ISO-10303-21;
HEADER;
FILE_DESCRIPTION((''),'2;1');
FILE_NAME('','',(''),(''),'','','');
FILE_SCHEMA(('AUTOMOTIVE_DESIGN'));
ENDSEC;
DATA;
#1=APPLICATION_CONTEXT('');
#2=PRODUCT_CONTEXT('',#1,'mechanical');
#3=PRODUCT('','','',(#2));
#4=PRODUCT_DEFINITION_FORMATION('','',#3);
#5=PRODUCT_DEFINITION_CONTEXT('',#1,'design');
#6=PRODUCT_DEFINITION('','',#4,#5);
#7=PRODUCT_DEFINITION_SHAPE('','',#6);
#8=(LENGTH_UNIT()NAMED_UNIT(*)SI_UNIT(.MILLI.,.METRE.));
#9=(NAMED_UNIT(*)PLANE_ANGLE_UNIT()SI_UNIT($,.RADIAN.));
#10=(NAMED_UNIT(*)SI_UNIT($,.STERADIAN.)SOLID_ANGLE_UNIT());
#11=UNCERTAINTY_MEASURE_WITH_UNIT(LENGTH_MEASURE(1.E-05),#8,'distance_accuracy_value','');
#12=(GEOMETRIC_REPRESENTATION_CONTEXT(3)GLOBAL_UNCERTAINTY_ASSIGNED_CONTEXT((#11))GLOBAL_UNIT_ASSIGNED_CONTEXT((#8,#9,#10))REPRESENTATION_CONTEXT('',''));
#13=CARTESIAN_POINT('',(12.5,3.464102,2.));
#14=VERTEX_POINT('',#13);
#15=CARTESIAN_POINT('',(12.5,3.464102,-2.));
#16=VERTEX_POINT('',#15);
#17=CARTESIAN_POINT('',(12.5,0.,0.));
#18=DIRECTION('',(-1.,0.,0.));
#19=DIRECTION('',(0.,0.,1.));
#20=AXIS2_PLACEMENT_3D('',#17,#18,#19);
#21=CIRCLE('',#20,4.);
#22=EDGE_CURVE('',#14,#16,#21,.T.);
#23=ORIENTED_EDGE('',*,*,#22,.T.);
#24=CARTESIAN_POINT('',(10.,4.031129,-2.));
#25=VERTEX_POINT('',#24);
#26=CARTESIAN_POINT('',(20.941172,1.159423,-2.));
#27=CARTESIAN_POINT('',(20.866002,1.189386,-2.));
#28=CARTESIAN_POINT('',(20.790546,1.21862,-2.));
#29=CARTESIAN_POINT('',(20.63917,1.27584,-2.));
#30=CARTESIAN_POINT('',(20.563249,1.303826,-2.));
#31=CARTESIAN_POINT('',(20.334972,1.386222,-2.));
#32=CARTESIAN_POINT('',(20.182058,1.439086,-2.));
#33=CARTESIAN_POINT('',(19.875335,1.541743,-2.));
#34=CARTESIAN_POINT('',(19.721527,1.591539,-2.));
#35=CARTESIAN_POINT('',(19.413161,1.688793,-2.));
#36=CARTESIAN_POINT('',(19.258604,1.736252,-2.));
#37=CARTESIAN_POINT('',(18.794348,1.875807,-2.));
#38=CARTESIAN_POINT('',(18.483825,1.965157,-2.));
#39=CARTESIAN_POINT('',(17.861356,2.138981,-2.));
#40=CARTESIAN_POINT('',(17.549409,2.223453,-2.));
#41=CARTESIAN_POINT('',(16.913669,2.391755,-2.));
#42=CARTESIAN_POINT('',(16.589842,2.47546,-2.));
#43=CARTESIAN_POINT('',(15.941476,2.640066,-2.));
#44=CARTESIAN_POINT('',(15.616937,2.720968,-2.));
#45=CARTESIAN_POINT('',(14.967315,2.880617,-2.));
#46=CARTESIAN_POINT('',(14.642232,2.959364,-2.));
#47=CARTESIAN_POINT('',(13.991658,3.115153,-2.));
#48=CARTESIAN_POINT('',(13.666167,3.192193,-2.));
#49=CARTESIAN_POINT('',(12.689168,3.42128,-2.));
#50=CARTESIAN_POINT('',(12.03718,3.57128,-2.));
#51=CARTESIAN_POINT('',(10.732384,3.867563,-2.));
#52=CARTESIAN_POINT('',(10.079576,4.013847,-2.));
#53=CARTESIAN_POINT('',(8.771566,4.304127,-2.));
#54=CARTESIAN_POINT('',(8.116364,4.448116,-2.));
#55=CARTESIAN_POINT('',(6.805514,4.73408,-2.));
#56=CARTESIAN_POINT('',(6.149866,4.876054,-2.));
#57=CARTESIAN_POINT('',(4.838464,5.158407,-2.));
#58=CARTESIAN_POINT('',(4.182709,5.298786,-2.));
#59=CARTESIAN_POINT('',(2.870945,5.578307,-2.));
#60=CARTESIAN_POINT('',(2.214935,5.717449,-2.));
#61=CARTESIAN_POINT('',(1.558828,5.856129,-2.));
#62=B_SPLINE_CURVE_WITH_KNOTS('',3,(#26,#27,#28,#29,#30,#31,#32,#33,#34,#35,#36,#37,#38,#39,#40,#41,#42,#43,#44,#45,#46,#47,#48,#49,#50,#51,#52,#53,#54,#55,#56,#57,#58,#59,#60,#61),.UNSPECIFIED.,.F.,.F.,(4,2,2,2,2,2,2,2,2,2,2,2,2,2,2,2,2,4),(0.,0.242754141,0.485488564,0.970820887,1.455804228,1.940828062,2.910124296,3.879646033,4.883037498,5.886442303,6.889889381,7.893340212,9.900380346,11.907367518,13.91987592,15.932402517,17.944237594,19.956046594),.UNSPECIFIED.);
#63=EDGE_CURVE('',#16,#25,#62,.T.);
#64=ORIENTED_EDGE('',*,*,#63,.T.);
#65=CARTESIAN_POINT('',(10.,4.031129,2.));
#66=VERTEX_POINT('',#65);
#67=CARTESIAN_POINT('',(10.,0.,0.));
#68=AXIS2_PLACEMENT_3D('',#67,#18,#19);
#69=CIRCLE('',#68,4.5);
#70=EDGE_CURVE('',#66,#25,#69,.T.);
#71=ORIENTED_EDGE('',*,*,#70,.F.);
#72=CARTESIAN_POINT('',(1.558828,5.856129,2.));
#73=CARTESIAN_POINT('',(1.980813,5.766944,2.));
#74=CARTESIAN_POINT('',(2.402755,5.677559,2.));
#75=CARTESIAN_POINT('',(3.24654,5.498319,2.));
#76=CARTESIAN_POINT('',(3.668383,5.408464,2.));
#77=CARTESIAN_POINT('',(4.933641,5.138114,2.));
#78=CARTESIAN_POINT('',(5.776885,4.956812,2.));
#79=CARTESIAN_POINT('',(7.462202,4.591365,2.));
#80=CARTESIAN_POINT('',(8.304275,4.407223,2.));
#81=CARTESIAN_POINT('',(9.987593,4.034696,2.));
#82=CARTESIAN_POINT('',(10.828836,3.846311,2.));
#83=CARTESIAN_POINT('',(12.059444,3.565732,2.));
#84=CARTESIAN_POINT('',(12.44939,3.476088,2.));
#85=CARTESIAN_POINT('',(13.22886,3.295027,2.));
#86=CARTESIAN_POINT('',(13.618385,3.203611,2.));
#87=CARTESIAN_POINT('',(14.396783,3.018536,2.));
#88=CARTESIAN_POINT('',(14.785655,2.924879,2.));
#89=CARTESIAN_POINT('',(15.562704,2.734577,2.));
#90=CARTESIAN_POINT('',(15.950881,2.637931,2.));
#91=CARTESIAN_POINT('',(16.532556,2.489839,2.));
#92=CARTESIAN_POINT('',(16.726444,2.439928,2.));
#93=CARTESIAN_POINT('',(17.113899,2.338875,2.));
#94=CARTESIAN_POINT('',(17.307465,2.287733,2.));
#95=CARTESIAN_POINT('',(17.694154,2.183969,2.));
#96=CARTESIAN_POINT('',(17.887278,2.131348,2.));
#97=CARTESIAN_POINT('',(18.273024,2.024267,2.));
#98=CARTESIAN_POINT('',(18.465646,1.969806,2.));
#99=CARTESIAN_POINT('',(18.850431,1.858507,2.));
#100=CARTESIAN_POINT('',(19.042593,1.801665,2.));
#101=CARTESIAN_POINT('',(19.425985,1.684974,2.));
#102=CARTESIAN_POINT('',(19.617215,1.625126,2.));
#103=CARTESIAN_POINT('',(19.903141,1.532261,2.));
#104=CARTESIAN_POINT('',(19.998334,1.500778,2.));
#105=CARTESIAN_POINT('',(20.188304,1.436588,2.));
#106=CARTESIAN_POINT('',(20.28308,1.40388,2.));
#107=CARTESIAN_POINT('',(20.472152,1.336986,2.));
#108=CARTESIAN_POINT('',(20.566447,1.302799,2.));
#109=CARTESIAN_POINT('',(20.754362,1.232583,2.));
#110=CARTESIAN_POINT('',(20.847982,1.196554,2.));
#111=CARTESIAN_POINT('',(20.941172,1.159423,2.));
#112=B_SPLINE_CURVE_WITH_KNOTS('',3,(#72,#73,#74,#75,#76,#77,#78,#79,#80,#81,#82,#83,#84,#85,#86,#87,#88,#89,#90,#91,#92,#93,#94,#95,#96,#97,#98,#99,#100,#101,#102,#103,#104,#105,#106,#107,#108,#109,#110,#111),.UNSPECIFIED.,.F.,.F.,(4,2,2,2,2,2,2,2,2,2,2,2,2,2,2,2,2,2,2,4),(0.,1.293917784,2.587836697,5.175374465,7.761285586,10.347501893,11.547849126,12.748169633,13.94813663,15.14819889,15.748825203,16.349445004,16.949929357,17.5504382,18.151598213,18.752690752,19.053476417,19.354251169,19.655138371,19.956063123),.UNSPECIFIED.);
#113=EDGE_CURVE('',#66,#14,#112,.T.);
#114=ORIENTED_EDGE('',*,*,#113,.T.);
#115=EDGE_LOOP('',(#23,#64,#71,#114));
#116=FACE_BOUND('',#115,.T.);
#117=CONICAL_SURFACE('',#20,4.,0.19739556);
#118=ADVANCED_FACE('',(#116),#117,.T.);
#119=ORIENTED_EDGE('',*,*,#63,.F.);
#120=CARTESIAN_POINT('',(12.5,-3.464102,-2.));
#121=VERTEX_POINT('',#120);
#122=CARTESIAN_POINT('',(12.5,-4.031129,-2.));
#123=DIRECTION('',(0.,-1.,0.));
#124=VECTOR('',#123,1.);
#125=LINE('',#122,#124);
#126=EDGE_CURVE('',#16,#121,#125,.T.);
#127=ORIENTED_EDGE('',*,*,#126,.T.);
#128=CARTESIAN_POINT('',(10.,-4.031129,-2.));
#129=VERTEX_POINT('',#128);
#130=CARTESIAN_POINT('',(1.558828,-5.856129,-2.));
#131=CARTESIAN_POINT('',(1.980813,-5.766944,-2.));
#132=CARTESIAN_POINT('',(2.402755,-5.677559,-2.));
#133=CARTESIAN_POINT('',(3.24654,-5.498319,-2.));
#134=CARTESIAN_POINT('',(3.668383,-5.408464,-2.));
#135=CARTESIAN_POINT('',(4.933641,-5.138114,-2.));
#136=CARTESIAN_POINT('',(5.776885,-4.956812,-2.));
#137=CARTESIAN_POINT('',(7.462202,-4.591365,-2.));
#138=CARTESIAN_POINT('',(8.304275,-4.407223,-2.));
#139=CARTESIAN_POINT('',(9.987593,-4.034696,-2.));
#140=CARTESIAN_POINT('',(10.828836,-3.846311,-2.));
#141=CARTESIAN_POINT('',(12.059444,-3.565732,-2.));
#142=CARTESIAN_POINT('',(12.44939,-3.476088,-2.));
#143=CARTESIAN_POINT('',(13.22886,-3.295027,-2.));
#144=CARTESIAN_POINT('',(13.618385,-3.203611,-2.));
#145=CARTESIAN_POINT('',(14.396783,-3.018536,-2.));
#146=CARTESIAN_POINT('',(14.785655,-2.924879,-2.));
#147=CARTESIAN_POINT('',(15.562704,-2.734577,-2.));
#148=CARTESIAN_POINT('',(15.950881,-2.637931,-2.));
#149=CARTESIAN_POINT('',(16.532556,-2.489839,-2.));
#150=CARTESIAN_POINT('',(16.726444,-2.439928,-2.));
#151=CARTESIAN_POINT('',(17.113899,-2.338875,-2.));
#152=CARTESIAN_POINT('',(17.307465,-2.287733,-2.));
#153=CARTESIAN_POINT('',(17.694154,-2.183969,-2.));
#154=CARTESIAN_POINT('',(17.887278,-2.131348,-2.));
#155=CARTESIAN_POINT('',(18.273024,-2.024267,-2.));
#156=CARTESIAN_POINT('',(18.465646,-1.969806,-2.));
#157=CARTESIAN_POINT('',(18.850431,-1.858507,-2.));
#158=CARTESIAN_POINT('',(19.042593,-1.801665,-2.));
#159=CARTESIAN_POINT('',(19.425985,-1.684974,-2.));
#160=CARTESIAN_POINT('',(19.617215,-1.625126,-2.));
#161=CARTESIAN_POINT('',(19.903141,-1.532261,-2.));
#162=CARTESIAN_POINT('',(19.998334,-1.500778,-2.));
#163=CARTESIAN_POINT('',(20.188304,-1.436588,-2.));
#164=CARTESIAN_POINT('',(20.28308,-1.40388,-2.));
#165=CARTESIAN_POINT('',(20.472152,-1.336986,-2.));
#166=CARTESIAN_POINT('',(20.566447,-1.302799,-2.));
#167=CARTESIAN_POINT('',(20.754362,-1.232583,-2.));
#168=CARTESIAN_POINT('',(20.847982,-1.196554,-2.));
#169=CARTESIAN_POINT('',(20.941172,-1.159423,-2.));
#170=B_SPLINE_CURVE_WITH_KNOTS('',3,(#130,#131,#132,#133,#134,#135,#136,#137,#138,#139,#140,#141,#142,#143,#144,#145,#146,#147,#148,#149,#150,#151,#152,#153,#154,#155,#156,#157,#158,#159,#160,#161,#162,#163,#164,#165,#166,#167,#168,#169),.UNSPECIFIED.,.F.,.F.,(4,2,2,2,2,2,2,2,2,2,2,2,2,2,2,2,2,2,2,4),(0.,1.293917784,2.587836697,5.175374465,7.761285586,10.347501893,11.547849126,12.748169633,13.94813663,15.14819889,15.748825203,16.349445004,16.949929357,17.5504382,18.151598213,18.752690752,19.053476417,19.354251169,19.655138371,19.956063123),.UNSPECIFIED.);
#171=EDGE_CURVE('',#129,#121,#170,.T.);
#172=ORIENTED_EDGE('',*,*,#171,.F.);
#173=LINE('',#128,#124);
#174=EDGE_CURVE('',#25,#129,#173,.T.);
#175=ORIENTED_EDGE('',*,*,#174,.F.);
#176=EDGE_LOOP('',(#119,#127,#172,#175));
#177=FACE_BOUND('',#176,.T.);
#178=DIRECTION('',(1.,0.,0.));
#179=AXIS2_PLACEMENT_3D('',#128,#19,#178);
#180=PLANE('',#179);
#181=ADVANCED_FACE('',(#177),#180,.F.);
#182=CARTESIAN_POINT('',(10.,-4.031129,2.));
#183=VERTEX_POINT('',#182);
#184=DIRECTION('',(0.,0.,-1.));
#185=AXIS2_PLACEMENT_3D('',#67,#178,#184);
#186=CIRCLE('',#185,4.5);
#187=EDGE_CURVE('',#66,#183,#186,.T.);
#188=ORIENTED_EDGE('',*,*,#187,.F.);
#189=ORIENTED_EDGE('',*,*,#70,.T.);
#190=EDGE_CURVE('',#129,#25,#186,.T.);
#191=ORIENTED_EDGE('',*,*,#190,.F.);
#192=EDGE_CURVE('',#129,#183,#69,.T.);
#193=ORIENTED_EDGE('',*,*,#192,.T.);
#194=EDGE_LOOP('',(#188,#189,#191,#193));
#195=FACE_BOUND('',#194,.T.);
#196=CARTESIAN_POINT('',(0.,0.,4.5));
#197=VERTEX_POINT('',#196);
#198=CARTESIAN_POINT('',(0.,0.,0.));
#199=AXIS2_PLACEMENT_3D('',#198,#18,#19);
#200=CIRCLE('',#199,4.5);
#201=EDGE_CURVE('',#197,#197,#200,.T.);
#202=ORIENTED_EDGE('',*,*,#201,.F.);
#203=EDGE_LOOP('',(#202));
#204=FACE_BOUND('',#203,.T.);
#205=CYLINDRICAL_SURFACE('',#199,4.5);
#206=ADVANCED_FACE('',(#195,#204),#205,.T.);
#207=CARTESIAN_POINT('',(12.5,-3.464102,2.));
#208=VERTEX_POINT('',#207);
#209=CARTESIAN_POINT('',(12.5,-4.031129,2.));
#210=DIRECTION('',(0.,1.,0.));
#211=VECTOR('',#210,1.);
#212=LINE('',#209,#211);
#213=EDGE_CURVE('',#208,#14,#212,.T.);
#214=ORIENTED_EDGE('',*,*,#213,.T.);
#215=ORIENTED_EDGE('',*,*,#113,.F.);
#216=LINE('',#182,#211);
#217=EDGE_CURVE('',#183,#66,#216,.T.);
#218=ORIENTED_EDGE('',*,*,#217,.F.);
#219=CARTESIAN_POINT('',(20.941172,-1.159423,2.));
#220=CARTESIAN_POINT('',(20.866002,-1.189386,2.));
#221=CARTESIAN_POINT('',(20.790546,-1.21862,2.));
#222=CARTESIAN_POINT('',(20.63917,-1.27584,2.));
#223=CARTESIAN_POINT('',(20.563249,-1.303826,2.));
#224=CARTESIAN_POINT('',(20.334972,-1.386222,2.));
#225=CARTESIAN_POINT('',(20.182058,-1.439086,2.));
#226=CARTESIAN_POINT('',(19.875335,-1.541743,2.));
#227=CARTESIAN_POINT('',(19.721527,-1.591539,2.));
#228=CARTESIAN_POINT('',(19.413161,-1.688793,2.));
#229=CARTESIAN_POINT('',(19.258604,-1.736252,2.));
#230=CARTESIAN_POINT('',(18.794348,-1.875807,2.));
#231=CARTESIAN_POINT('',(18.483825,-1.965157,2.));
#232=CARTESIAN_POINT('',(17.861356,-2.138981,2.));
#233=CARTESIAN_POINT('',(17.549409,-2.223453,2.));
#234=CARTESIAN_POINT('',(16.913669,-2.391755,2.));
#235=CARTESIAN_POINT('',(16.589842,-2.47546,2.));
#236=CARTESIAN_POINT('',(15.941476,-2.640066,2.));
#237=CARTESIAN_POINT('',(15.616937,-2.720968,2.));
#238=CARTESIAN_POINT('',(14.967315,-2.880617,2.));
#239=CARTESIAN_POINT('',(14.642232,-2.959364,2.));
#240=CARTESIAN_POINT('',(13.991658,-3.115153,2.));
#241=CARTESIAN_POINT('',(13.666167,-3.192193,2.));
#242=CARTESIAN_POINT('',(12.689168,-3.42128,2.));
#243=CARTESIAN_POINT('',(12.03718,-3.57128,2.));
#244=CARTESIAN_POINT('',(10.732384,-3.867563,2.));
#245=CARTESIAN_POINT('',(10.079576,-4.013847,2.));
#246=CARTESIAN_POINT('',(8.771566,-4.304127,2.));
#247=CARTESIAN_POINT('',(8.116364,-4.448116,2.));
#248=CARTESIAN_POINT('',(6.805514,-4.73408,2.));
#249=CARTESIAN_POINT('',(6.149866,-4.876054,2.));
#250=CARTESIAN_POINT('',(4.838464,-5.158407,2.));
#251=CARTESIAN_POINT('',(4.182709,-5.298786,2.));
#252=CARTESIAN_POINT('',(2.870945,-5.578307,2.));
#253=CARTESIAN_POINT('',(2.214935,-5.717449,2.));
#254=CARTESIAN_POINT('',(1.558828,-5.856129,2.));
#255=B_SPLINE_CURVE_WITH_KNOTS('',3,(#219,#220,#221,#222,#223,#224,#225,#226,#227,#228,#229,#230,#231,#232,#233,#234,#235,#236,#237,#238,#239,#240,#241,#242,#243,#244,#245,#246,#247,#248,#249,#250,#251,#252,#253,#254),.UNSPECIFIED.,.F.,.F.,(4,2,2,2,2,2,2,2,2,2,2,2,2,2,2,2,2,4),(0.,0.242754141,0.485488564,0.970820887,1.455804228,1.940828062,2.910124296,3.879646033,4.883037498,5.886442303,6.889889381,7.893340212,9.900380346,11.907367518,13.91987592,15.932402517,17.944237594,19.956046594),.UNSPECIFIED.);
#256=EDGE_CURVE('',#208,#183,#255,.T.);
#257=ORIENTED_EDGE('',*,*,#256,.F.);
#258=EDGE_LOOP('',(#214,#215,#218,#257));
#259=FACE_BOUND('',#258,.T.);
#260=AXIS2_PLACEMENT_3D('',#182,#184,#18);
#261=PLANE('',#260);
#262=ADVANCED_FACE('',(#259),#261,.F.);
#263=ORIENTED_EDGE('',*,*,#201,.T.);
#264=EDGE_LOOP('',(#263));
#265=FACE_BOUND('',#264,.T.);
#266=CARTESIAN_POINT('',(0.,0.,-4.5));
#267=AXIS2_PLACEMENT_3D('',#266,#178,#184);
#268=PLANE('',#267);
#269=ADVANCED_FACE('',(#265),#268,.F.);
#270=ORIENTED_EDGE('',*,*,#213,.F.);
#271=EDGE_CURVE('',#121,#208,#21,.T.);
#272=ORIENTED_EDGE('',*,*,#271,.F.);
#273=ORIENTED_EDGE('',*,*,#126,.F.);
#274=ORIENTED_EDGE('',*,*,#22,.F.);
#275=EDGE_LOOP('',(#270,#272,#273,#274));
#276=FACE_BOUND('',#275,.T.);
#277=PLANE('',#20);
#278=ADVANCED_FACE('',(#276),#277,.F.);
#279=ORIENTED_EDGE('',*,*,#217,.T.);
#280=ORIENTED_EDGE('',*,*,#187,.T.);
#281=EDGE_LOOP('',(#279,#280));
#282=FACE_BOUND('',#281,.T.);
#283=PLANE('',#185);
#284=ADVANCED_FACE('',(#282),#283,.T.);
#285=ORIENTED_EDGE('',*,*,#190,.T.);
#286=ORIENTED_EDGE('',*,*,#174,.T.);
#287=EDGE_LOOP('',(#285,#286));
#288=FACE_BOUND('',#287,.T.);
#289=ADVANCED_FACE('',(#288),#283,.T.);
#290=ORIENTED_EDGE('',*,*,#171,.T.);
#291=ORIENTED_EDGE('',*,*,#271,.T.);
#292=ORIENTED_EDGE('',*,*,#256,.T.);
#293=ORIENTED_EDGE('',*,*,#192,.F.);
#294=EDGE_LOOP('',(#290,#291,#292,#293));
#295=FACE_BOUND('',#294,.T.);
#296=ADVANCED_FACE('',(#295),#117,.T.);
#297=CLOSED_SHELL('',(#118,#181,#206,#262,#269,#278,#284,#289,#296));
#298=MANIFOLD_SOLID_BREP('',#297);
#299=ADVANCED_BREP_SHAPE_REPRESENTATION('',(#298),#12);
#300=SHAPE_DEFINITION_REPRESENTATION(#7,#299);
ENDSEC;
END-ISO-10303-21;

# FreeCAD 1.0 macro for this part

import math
import FreeCAD as App
import Part
import Sketcher
from FreeCAD import Vector


def add_polygon(sketch, points):
    """Adds a closed chain of lines whose ends are joined by coincident constraints."""
    first, n = sketch.GeometryCount, len(points)
    for a, b in zip(points, points[1:] + points[:1]):
        sketch.addGeometry(Part.LineSegment(App.Vector(*a, 0), App.Vector(*b, 0)), False)
    for i in range(n):
        sketch.addConstraint(Sketcher.Constraint("Coincident", first + i, 2, first + (i + 1) % n, 1))

doc = App.newDocument("Part")
body = doc.addObject("PartDesign::Body", "Body")

# Sketch on XZ plane
sketch1 = doc.addObject("Sketcher::SketchObject", "Sketch")
body.addObject(sketch1)
sketch1.AttachmentSupport = (doc.XZ_Plane, [""])
sketch1.MapMode = "FlatFace"
add_polygon(sketch1, [(0, 0), (12.5, 0), (12.5, -4), (10, -4.5), (0, -4.5)])  # lines 0-4
sketch1.addConstraint(Sketcher.Constraint("Horizontal", 0))
sketch1.addConstraint(Sketcher.Constraint("Vertical", 1))
sketch1.addConstraint(Sketcher.Constraint("Horizontal", 3))
sketch1.addConstraint(Sketcher.Constraint("Vertical", 4))
sketch1.addConstraint(Sketcher.Constraint("Coincident", 4, 2, -1, 1))
sketch1.addConstraint(Sketcher.Constraint("DistanceX", 3, 2, 3, 1, 10.0))
sketch1.addConstraint(Sketcher.Constraint("DistanceY", 1, 2, 1, 1, 4.0))
sketch1.addConstraint(Sketcher.Constraint("DistanceX", 0, 1, 0, 2, 12.5))
sketch1.addConstraint(Sketcher.Constraint("DistanceY", 4, 1, 4, 2, 4.5))
revolution = doc.addObject("PartDesign::Revolution", "Revolution")
body.addObject(revolution)
revolution.Profile = sketch1
revolution.ReferenceAxis = (sketch1, ["H_Axis"])
revolution.Angle = 360

# Sketch on YZ plane
sketch2 = doc.addObject("Sketcher::SketchObject", "Sketch001")
body.addObject(sketch2)
sketch2.AttachmentSupport = (doc.YZ_Plane, [""])
sketch2.MapMode = "FlatFace"
sketch2.AttachmentOffset = App.Placement(Vector(0, 0, 12.5), App.Rotation())
sketch2.addGeometry(Part.LineSegment(Vector(-4, 2, 0), Vector(4, 2, 0)), False)
sketch2.addGeometry(Part.ArcOfCircle(Part.Circle(Vector(0, 0, 0), Vector(0, 0, 1), 4.5), math.radians(26), math.radians(154)), False)
sketch2.addGeometry(Part.LineSegment(Vector(4, -2, 0), Vector(-4, -2, 0)), False)
sketch2.addGeometry(Part.ArcOfCircle(Part.Circle(Vector(0, 0, 0), Vector(0, 0, 1), 4.5), math.radians(-154), math.radians(-26)), False)
sketch2.addConstraint(Sketcher.Constraint("Coincident", 0, 1, 1, 2))
sketch2.addConstraint(Sketcher.Constraint("Coincident", 1, 1, 0, 2))
sketch2.addConstraint(Sketcher.Constraint("Coincident", 2, 1, 3, 2))
sketch2.addConstraint(Sketcher.Constraint("Coincident", 3, 1, 2, 2))
sketch2.addConstraint(Sketcher.Constraint("Horizontal", 0))
sketch2.addConstraint(Sketcher.Constraint("Horizontal", 2))
sketch2.addConstraint(Sketcher.Constraint("Coincident", 1, 3, -1, 1))
sketch2.addConstraint(Sketcher.Constraint("Coincident", 3, 3, -1, 1))
sketch2.addConstraint(Sketcher.Constraint("Equal", 1, 3))
sketch2.addConstraint(Sketcher.Constraint("Vertical", 1, 1, 2, 1))
sketch2.addConstraint(Sketcher.Constraint("Radius", 1, 4.5))
sketch2.addConstraint(Sketcher.Constraint("DistanceY", -1, 1, 0, 1, 2.0))
pocket1 = doc.addObject("PartDesign::Pocket", "Pocket")
body.addObject(pocket1)
pocket1.Profile = sketch2
pocket1.Length = 2.5

doc.recompute()
